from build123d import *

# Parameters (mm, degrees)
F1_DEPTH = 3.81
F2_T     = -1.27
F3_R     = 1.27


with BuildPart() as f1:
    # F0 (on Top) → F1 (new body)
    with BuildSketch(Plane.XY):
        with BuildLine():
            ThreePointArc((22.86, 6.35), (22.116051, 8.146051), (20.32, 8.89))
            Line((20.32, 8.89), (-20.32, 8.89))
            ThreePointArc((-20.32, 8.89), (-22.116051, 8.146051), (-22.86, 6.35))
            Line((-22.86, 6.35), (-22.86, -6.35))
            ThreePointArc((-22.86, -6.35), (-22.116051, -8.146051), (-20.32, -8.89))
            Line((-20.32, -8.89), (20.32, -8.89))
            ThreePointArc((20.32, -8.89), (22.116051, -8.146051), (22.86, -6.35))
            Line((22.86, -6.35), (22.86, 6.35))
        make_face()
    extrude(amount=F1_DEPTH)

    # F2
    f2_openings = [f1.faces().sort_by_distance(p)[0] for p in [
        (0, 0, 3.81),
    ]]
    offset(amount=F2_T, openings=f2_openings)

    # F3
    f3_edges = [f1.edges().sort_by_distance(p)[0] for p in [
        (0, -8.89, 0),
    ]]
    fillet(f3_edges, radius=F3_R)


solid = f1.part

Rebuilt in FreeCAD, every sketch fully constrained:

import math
import FreeCAD as App
import Part
import Sketcher

V = App.Vector
Q = App.Units.Quantity


def edges_at(feature, points):
    """Names of the edges that pass closest to the given points."""
    edges = feature.Shape.Edges
    near = lambda p: min(range(len(edges)), key=lambda i: edges[i].distToShape(Part.Vertex(*p))[0])
    return sorted({f"Edge{near(p) + 1}" for p in points})


def faces_at(feature, points):
    """Names of the faces that lie closest to the given points."""
    faces = feature.Shape.Faces
    near = lambda p: min(range(len(faces)), key=lambda i: faces[i].distToShape(Part.Vertex(*p))[0])
    return sorted({f"Face{near(p) + 1}" for p in points})

doc = App.newDocument("Part")
params = doc.addObject("Spreadsheet::Sheet", "Params")
for row, (alias, value) in enumerate([
    ("sketch1_radius", "0.1 in"),
    ("sketch1_width", "1.6 in"),
    ("sketch1_height", "0.5 in"),
    ("pad1_length", "0.15 in"),
    ("thickness_wall", "0.05 in"),
    ("fillet_radius", "0.05 in"),
], start=1):
    params.set(f"A{row}", alias)
    params.set(f"B{row}", "=" + value)
    params.setAlias(f"B{row}", alias)

body = doc.addObject("PartDesign::Body", "Body")

sketch1 = body.newObject("Sketcher::SketchObject", "Sketch")
sketch1.AttachmentSupport = (doc.getObject("XY_Plane"), [""])
sketch1.MapMode = "FlatFace"
sketch1.addGeometry([
    Part.ArcOfCircle(Part.Circle(V(20.3, 6.3, 0), V(0, 0, 1), 2.5), math.radians(0), math.radians(90)),
    Part.LineSegment(V(20.3, 8.9, 0), V(-20.3, 8.9, 0)),
    Part.ArcOfCircle(Part.Circle(V(-20.3, 6.3, 0), V(0, 0, 1), 2.5), math.radians(90), math.radians(180)),
    Part.LineSegment(V(-22.9, 6.3, 0), V(-22.9, -6.3, 0)),
    Part.ArcOfCircle(Part.Circle(V(-20.3, -6.3, 0), V(0, 0, 1), 2.5), math.radians(-180), math.radians(-90)),
    Part.LineSegment(V(-20.3, -8.9, 0), V(20.3, -8.9, 0)),
    Part.ArcOfCircle(Part.Circle(V(20.3, -6.3, 0), V(0, 0, 1), 2.5), math.radians(-90), math.radians(0)),
    Part.LineSegment(V(22.9, -6.3, 0), V(22.9, 6.3, 0)),
], False)
sketch1.addConstraint([
    Sketcher.Constraint("Tangent", 0, 2, 1, 1),
    Sketcher.Constraint("Tangent", 1, 2, 2, 1),
    Sketcher.Constraint("Tangent", 2, 2, 3, 1),
    Sketcher.Constraint("Tangent", 3, 2, 4, 1),
    Sketcher.Constraint("Tangent", 4, 2, 5, 1),
    Sketcher.Constraint("Tangent", 5, 2, 6, 1),
    Sketcher.Constraint("Tangent", 6, 2, 7, 1),
    Sketcher.Constraint("Tangent", 7, 2, 0, 1),
    Sketcher.Constraint("Horizontal", 1),
    Sketcher.Constraint("Vertical", 3),
    Sketcher.Constraint("Horizontal", 5),
    Sketcher.Constraint("Vertical", 7),
    Sketcher.Constraint("Equal", 0, 2),
    Sketcher.Constraint("Equal", 2, 4),
    Sketcher.Constraint("Equal", 4, 6),
    Sketcher.Constraint("Symmetric", 0, 3, 4, 3, -1, 1),
    Sketcher.Constraint("Radius", 0, Q("0.1 in")),
    Sketcher.Constraint("DistanceX", 1, 2, 1, 1, Q("1.6 in")),
    Sketcher.Constraint("DistanceY", 3, 2, 3, 1, Q("0.5 in")),
])
sketch1.setExpression("Constraints[16]", "Params.sketch1_radius")
sketch1.setExpression("Constraints[17]", "Params.sketch1_width")
sketch1.setExpression("Constraints[18]", "Params.sketch1_height")
pad1 = body.newObject("PartDesign::Pad", "Pad")
pad1.Profile = sketch1
pad1.setExpression("Length", "Params.pad1_length")
doc.recompute()

thickness = body.newObject("PartDesign::Thickness", "Thickness")
thickness.Base = (pad1, faces_at(pad1, [(0, 0, 3.81)]))
thickness.setExpression("Value", "Params.thickness_wall")
thickness.Reversed = True
thickness.Join = "Arc"
doc.recompute()

fillet = body.newObject("PartDesign::Fillet", "Fillet")
fillet.Base = (thickness, edges_at(thickness, [(0, -8.89, 0)]))
fillet.setExpression("Radius", "Params.fillet_radius")

doc.recompute()
